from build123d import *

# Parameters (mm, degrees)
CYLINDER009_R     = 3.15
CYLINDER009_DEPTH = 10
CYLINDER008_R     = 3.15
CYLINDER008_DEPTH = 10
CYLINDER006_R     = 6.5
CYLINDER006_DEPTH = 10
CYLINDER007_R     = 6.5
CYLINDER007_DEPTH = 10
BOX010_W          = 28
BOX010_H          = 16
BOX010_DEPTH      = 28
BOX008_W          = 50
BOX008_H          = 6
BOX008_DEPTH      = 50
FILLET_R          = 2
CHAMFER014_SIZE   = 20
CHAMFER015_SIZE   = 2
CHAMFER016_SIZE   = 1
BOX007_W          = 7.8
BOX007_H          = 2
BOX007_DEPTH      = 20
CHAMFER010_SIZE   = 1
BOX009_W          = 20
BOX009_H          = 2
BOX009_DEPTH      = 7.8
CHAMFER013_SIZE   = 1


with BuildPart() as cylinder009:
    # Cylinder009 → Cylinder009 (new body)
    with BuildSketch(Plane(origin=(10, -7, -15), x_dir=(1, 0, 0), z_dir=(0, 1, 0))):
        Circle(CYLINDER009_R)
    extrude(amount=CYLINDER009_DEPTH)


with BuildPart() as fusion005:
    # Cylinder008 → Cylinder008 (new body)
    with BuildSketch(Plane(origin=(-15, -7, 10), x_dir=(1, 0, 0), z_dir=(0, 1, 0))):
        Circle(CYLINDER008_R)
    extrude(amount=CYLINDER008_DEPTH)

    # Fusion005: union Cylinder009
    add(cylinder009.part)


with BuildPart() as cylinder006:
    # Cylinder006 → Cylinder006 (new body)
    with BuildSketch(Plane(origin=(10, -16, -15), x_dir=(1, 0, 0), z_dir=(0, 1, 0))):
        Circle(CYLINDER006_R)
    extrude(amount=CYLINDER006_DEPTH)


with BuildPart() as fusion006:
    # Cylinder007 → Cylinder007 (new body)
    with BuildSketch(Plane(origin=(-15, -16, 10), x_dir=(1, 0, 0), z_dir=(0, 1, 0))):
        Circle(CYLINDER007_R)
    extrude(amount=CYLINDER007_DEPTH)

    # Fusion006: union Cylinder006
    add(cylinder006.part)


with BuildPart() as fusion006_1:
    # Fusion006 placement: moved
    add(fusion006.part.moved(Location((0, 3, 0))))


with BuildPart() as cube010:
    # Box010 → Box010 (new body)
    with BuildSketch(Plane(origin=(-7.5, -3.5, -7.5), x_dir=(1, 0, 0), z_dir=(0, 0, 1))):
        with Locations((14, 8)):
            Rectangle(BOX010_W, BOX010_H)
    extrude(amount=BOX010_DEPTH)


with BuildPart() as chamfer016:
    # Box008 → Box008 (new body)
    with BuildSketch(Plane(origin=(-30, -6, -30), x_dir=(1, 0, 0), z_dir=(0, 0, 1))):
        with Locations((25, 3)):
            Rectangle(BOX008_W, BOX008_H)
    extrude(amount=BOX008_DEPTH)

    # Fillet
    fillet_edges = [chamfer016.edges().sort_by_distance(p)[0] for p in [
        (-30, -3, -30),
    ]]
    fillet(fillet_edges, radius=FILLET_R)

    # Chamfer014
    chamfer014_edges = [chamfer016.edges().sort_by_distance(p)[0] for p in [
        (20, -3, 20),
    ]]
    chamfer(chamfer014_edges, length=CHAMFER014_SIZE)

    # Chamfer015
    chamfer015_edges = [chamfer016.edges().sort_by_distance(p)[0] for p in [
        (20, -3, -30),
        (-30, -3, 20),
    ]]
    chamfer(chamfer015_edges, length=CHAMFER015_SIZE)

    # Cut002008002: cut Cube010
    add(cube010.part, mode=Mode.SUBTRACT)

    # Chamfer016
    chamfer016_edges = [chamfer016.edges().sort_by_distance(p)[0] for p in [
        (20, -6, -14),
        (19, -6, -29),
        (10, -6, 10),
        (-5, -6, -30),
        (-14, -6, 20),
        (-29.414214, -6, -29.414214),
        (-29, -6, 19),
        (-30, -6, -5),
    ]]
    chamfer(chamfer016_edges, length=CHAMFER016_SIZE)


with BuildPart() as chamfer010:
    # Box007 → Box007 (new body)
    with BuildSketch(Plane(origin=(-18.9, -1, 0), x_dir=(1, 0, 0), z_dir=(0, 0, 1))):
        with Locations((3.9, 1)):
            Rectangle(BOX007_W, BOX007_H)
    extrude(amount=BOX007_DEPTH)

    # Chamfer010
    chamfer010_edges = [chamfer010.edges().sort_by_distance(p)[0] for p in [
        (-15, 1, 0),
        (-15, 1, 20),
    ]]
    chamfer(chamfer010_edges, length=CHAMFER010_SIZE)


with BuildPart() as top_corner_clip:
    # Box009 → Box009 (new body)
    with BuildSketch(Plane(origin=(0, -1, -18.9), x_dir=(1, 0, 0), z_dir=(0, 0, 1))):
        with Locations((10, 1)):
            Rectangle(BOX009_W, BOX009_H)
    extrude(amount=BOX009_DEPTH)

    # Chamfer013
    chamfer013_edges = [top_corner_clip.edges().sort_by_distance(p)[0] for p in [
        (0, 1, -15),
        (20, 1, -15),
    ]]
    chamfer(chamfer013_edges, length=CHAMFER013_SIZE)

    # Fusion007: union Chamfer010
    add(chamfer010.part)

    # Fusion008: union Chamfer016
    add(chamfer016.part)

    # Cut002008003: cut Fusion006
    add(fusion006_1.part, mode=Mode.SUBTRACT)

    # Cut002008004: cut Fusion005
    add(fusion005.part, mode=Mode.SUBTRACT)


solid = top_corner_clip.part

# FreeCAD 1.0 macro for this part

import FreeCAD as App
import Part
import Sketcher


def edges_at(feature, points):
    """Names of the edges that pass closest to the given points."""
    edges = feature.Shape.Edges
    near = lambda p: min(range(len(edges)), key=lambda i: edges[i].distToShape(Part.Vertex(*p))[0])
    return sorted({f"Edge{near(p) + 1}" for p in points})


def add_polygon(sketch, points):
    """Adds a closed chain of lines whose ends are joined by coincident constraints."""
    first, n = sketch.GeometryCount, len(points)
    for a, b in zip(points, points[1:] + points[:1]):
        sketch.addGeometry(Part.LineSegment(App.Vector(*a, 0), App.Vector(*b, 0)), False)
    for i in range(n):
        sketch.addConstraint(Sketcher.Constraint("Coincident", first + i, 2, first + (i + 1) % n, 1))

doc = App.newDocument("Part")
params = doc.addObject("Spreadsheet::Sheet", "Params")
for row, (alias, value) in enumerate([
    ("sketch1_diameter", "6.3 mm"),
    ("pad1_length", "10 mm"),
    ("sketch2_diameter", "6.3 mm"),
    ("pad2_length", "10 mm"),
    ("sketch3_diameter", "13 mm"),
    ("pad3_length", "10 mm"),
    ("sketch4_diameter", "13 mm"),
    ("pad4_length", "10 mm"),
    ("sketch5_width", "28 mm"),
    ("sketch5_height", "16 mm"),
    ("pad5_length", "28 mm"),
    ("sketch6_width", "50 mm"),
    ("sketch6_height", "6 mm"),
    ("pad6_length", "50 mm"),
    ("fillet_radius", "2 mm"),
    ("chamfer_size", "20 mm"),
    ("chamfer2_size", "2 mm"),
    ("chamfer3_size", "1 mm"),
    ("sketch7_height", "2 mm"),
    ("sketch7_width", "7.8 mm"),
    ("pad7_length", "20 mm"),
    ("chamfer4_size", "1 mm"),
    ("sketch8_width", "20 mm"),
    ("sketch8_height", "2 mm"),
    ("pad8_length", "7.8 mm"),
    ("chamfer5_size", "1 mm"),
], start=1):
    params.set(f"A{row}", alias)
    params.set(f"B{row}", "=" + value)
    params.setAlias(f"B{row}", alias)

body = doc.addObject("PartDesign::Body", "Body")

sketch1 = body.newObject("Sketcher::SketchObject", "Sketch")
sketch1.AttachmentSupport = (doc.getObject("XZ_Plane"), [""])
sketch1.MapMode = "FlatFace"
sketch1.AttachmentOffset = App.Placement(App.Vector(0, 0, 7), App.Rotation())
sketch1.addGeometry(Part.Circle(App.Vector(10, -15, 0), App.Vector(0, 0, 1), 3.15), False)
sketch1.addConstraint([
    Sketcher.Constraint("Diameter", 0, 6.3),
    Sketcher.Constraint("DistanceX", -1, 1, 0, 3, 10.0),
    Sketcher.Constraint("DistanceY", 0, 3, -1, 1, 15.0),
])
sketch1.setExpression("Constraints[0]", "Params.sketch1_diameter")
pad1 = body.newObject("PartDesign::Pad", "Pad")
pad1.Profile = sketch1
pad1.setExpression("Length", "Params.pad1_length")
pad1.Reversed = True
body2 = doc.addObject("PartDesign::Body", "Body001")
body2.AllowCompound = True

sketch2 = body2.newObject("Sketcher::SketchObject", "Sketch001")
sketch2.AttachmentSupport = (doc.getObject("XZ_Plane001"), [""])
sketch2.MapMode = "FlatFace"
sketch2.AttachmentOffset = App.Placement(App.Vector(0, 0, 7), App.Rotation())
sketch2.addGeometry(Part.Circle(App.Vector(-15, 10, 0), App.Vector(0, 0, 1), 3.15), False)
sketch2.addConstraint([
    Sketcher.Constraint("Diameter", 0, 6.3),
    Sketcher.Constraint("DistanceX", 0, 3, -1, 1, 15.0),
    Sketcher.Constraint("DistanceY", -1, 1, 0, 3, 10.0),
])
sketch2.setExpression("Constraints[0]", "Params.sketch2_diameter")
pad2 = body2.newObject("PartDesign::Pad", "Pad001")
pad2.Profile = sketch2
pad2.setExpression("Length", "Params.pad2_length")
pad2.Reversed = True
doc.recompute()

boolean = body2.newObject("PartDesign::Boolean", "Boolean")
boolean.Type = "Fuse"
boolean.addObjects([body])
body3 = doc.addObject("PartDesign::Body", "Body002")

sketch3 = body3.newObject("Sketcher::SketchObject", "Sketch002")
sketch3.AttachmentSupport = (doc.getObject("XZ_Plane002"), [""])
sketch3.MapMode = "FlatFace"
sketch3.AttachmentOffset = App.Placement(App.Vector(0, 0, 16), App.Rotation())
sketch3.addGeometry(Part.Circle(App.Vector(10, -15, 0), App.Vector(0, 0, 1), 6.5), False)
sketch3.addConstraint([
    Sketcher.Constraint("Diameter", 0, 13.0),
    Sketcher.Constraint("DistanceX", -1, 1, 0, 3, 10.0),
    Sketcher.Constraint("DistanceY", 0, 3, -1, 1, 15.0),
])
sketch3.setExpression("Constraints[0]", "Params.sketch3_diameter")
pad3 = body3.newObject("PartDesign::Pad", "Pad002")
pad3.Profile = sketch3
pad3.setExpression("Length", "Params.pad3_length")
pad3.Reversed = True
body4 = doc.addObject("PartDesign::Body", "Body003")
body4.AllowCompound = True

sketch4 = body4.newObject("Sketcher::SketchObject", "Sketch003")
sketch4.AttachmentSupport = (doc.getObject("XZ_Plane003"), [""])
sketch4.MapMode = "FlatFace"
sketch4.AttachmentOffset = App.Placement(App.Vector(0, 0, 16), App.Rotation())
sketch4.addGeometry(Part.Circle(App.Vector(-15, 10, 0), App.Vector(0, 0, 1), 6.5), False)
sketch4.addConstraint([
    Sketcher.Constraint("Diameter", 0, 13.0),
    Sketcher.Constraint("DistanceX", 0, 3, -1, 1, 15.0),
    Sketcher.Constraint("DistanceY", -1, 1, 0, 3, 10.0),
])
sketch4.setExpression("Constraints[0]", "Params.sketch4_diameter")
pad4 = body4.newObject("PartDesign::Pad", "Pad003")
pad4.Profile = sketch4
pad4.setExpression("Length", "Params.pad4_length")
pad4.Reversed = True
doc.recompute()

boolean2 = body4.newObject("PartDesign::Boolean", "Boolean001")
boolean2.Type = "Fuse"
boolean2.addObjects([body3])
body5 = doc.addObject("PartDesign::Body", "Body004")
body5.AllowCompound = True
doc.recompute()

body4.Placement = App.Placement(App.Vector(0, 3, 0), App.Rotation(App.Vector(0, 0, 1), 0))
boolean3 = body5.newObject("PartDesign::Boolean", "Boolean002")
boolean3.Type = "Fuse"
boolean3.addObjects([body4])
body6 = doc.addObject("PartDesign::Body", "Body005")

sketch5 = body6.newObject("Sketcher::SketchObject", "Sketch004")
sketch5.AttachmentSupport = (doc.getObject("XY_Plane005"), [""])
sketch5.MapMode = "FlatFace"
sketch5.AttachmentOffset = App.Placement(App.Vector(0, 0, -7.5), App.Rotation())
add_polygon(sketch5, [(-7.5, 12.5), (-7.5, -3.5), (20.5, -3.5), (20.5, 12.5)])
sketch5.addConstraint([
    Sketcher.Constraint("Vertical", 0),
    Sketcher.Constraint("Horizontal", 1),
    Sketcher.Constraint("Vertical", 2),
    Sketcher.Constraint("Horizontal", 3),
    Sketcher.Constraint("DistanceX", 1, 1, 1, 2, 28.0),
    Sketcher.Constraint("DistanceY", 0, 2, 0, 1, 16.0),
    Sketcher.Constraint("DistanceX", 0, 2, -1, 1, 7.5),
    Sketcher.Constraint("DistanceY", 0, 2, -1, 1, 3.5),
])
sketch5.setExpression("Constraints[8]", "Params.sketch5_width")
sketch5.setExpression("Constraints[9]", "Params.sketch5_height")
pad5 = body6.newObject("PartDesign::Pad", "Pad004")
pad5.Profile = sketch5
pad5.setExpression("Length", "Params.pad5_length")
body7 = doc.addObject("PartDesign::Body", "Body006")

sketch6 = body7.newObject("Sketcher::SketchObject", "Sketch005")
sketch6.AttachmentSupport = (doc.getObject("XY_Plane006"), [""])
sketch6.MapMode = "FlatFace"
sketch6.AttachmentOffset = App.Placement(App.Vector(0, 0, -30), App.Rotation())
add_polygon(sketch6, [(-30, 0), (-30, -6), (20, -6), (20, 0)])
sketch6.addConstraint([
    Sketcher.Constraint("Vertical", 0),
    Sketcher.Constraint("Horizontal", 1),
    Sketcher.Constraint("Vertical", 2),
    Sketcher.Constraint("Horizontal", 3),
    Sketcher.Constraint("PointOnObject", 2, 2, -1),
    Sketcher.Constraint("DistanceX", 1, 1, 1, 2, 50.0),
    Sketcher.Constraint("DistanceY", 0, 2, 0, 1, 6.0),
    Sketcher.Constraint("DistanceX", 0, 2, -1, 1, 30.0),
])
sketch6.setExpression("Constraints[9]", "Params.sketch6_width")
sketch6.setExpression("Constraints[10]", "Params.sketch6_height")
pad6 = body7.newObject("PartDesign::Pad", "Pad005")
pad6.Profile = sketch6
pad6.setExpression("Length", "Params.pad6_length")
doc.recompute()

fillet = body7.newObject("PartDesign::Fillet", "Fillet")
fillet.Base = (pad6, edges_at(pad6, [(-30, -3, -30)]))
fillet.setExpression("Radius", "Params.fillet_radius")
doc.recompute()

chamfer = body7.newObject("PartDesign::Chamfer", "Chamfer")
chamfer.Base = (fillet, edges_at(fillet, [(20, -3, 20)]))
chamfer.setExpression("Size", "Params.chamfer_size")
doc.recompute()

chamfer2 = body7.newObject("PartDesign::Chamfer", "Chamfer001")
chamfer2.Base = (chamfer, edges_at(chamfer, [(20, -3, -30), (-30, -3, 20)]))
chamfer2.setExpression("Size", "Params.chamfer2_size")
doc.recompute()

boolean4 = body7.newObject("PartDesign::Boolean", "Boolean003")
boolean4.Type = "Cut"
boolean4.addObjects([body6])
doc.recompute()

chamfer3 = body7.newObject("PartDesign::Chamfer", "Chamfer002")
chamfer3.Base = (boolean4, edges_at(boolean4, [
    (20, -6, -14),
    (19, -6, -29),
    (10, -6, 10),
    (-5, -6, -30),
    (-14, -6, 20),
    (-29.414, -6, -29.414),
    (-29, -6, 19),
    (-30, -6, -5),
]))
chamfer3.setExpression("Size", "Params.chamfer3_size")
body8 = doc.addObject("PartDesign::Body", "Body007")

sketch7 = body8.newObject("Sketcher::SketchObject", "Sketch006")
sketch7.AttachmentSupport = (doc.getObject("XY_Plane007"), [""])
sketch7.MapMode = "FlatFace"
add_polygon(sketch7, [(-18.9, 1), (-18.9, -1), (-11.1, -1), (-11.1, 1)])
sketch7.addConstraint([
    Sketcher.Constraint("Vertical", 0),
    Sketcher.Constraint("Horizontal", 1),
    Sketcher.Constraint("Vertical", 2),
    Sketcher.Constraint("Horizontal", 3),
    Sketcher.Constraint("DistanceY", 0, 2, 0, 1, 2.0),
    Sketcher.Constraint("DistanceX", 1, 1, 1, 2, 7.8),
    Sketcher.Constraint("DistanceY", 0, 2, -1, 1, 1.0),
    Sketcher.Constraint("DistanceX", 0, 2, -1, 1, 18.9),
])
sketch7.setExpression("Constraints[8]", "Params.sketch7_height")
sketch7.setExpression("Constraints[9]", "Params.sketch7_width")
pad7 = body8.newObject("PartDesign::Pad", "Pad006")
pad7.Profile = sketch7
pad7.setExpression("Length", "Params.pad7_length")
doc.recompute()

chamfer4 = body8.newObject("PartDesign::Chamfer", "Chamfer003")
chamfer4.Base = (pad7, edges_at(pad7, [(-15, 1, 0), (-15, 1, 20)]))
chamfer4.setExpression("Size", "Params.chamfer4_size")
body9 = doc.addObject("PartDesign::Body", "Body008")
body9.AllowCompound = True

sketch8 = body9.newObject("Sketcher::SketchObject", "Sketch007")
sketch8.AttachmentSupport = (doc.getObject("XY_Plane008"), [""])
sketch8.MapMode = "FlatFace"
sketch8.AttachmentOffset = App.Placement(App.Vector(0, 0, -18.9), App.Rotation())
add_polygon(sketch8, [(0, 1), (0, -1), (20, -1), (20, 1)])
sketch8.addConstraint([
    Sketcher.Constraint("Vertical", 0),
    Sketcher.Constraint("Horizontal", 1),
    Sketcher.Constraint("Vertical", 2),
    Sketcher.Constraint("Horizontal", 3),
    Sketcher.Constraint("Symmetric", 0, 2, 3, 2, -1, 1),
    Sketcher.Constraint("DistanceX", 1, 1, 1, 2, 20.0),
    Sketcher.Constraint("DistanceY", 0, 2, 0, 1, 2.0),
])
sketch8.setExpression("Constraints[9]", "Params.sketch8_width")
sketch8.setExpression("Constraints[10]", "Params.sketch8_height")
pad8 = body9.newObject("PartDesign::Pad", "Pad007")
pad8.Profile = sketch8
pad8.setExpression("Length", "Params.pad8_length")
doc.recompute()

chamfer5 = body9.newObject("PartDesign::Chamfer", "Chamfer004")
chamfer5.Base = (pad8, edges_at(pad8, [(0, 1, -15), (20, 1, -15)]))
chamfer5.setExpression("Size", "Params.chamfer5_size")
doc.recompute()

boolean5 = body9.newObject("PartDesign::Boolean", "Boolean004")
boolean5.Type = "Fuse"
boolean5.addObjects([body8])
doc.recompute()

boolean6 = body9.newObject("PartDesign::Boolean", "Boolean005")
boolean6.Type = "Fuse"
boolean6.addObjects([body7])
doc.recompute()

boolean7 = body9.newObject("PartDesign::Boolean", "Boolean006")
boolean7.Type = "Cut"
boolean7.addObjects([body5])
doc.recompute()

boolean8 = body9.newObject("PartDesign::Boolean", "Boolean007")
boolean8.Type = "Cut"
boolean8.addObjects([body2])

doc.recompute()
